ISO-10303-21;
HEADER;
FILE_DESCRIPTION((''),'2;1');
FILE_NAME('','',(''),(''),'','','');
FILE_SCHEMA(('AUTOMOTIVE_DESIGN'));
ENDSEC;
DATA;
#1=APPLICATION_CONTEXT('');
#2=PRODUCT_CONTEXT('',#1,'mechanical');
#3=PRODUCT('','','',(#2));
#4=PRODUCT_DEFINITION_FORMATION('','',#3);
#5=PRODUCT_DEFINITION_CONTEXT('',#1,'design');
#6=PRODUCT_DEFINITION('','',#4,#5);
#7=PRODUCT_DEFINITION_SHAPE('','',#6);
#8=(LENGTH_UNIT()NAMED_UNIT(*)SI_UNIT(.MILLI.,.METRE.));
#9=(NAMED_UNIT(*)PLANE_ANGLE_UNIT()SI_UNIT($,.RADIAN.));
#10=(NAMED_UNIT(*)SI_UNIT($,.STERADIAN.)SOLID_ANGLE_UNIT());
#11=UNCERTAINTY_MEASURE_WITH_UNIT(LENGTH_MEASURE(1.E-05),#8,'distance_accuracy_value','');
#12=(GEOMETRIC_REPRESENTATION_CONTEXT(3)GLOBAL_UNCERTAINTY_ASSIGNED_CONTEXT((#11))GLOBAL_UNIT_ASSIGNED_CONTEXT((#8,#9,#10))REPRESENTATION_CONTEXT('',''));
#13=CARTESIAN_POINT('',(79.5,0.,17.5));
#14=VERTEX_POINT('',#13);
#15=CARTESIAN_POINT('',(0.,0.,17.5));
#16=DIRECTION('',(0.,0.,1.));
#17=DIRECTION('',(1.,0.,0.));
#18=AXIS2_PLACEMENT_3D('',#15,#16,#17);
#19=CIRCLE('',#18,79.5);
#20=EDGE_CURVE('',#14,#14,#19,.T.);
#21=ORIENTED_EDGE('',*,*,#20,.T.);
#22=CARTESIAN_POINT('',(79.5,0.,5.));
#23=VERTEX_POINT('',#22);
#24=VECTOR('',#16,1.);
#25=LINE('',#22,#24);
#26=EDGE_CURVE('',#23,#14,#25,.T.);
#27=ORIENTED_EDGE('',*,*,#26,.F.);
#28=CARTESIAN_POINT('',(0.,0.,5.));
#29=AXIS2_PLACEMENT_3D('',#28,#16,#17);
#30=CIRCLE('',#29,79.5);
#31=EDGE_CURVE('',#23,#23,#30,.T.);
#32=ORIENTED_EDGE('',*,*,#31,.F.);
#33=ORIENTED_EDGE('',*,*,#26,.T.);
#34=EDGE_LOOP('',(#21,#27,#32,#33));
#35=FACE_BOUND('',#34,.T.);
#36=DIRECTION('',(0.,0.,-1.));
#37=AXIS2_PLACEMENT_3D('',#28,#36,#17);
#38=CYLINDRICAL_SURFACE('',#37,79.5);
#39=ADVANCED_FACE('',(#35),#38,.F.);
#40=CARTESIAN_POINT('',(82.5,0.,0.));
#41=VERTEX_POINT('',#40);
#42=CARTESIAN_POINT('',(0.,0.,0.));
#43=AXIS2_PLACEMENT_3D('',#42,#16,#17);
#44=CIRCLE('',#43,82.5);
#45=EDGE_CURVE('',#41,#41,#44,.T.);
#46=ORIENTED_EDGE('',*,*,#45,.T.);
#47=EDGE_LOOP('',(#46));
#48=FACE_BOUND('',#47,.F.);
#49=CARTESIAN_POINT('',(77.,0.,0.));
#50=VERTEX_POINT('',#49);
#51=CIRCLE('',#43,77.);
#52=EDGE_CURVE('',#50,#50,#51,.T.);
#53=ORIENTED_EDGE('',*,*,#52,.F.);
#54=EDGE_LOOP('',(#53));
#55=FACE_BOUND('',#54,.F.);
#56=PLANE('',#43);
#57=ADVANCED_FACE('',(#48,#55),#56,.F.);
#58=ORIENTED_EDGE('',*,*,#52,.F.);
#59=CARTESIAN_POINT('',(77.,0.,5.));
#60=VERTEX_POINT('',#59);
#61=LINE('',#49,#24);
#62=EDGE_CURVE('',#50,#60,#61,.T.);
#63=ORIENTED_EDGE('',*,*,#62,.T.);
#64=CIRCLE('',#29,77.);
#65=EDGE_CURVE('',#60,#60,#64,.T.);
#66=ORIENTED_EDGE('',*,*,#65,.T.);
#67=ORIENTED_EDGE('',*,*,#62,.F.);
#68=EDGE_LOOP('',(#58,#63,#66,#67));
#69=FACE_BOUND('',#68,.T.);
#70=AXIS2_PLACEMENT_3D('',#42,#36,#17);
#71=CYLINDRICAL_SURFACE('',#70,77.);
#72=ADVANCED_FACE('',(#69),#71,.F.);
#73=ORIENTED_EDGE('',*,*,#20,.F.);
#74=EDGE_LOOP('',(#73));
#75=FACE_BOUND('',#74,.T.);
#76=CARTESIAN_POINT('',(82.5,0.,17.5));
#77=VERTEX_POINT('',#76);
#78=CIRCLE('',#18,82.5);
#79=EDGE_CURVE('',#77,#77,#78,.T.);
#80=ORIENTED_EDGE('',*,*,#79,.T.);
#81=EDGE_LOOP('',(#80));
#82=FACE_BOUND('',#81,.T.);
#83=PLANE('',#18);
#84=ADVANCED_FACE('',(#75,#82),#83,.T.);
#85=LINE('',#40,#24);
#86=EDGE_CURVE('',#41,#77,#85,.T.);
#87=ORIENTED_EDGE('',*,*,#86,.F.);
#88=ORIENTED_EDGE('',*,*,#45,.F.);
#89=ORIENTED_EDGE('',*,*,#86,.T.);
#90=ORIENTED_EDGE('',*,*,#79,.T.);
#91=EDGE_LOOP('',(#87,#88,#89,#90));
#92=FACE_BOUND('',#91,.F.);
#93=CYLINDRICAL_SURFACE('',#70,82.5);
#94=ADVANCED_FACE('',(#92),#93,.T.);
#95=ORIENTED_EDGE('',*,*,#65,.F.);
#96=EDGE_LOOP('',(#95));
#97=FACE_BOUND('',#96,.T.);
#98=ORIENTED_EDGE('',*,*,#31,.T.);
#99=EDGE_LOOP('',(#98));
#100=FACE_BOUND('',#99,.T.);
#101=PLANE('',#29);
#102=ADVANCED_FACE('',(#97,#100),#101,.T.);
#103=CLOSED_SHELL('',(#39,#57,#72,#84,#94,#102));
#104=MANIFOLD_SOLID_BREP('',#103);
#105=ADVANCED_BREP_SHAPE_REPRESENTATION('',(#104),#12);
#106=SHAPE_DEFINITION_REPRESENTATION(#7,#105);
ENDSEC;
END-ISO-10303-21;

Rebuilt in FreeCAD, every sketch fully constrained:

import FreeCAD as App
import Part
import Sketcher

V = App.Vector

doc = App.newDocument("Part")
body = doc.addObject("PartDesign::Body", "Body")

# Sketch on XY plane
sketch1 = doc.addObject("Sketcher::SketchObject", "Sketch")
body.addObject(sketch1)
sketch1.AttachmentSupport = (doc.XY_Plane, [""])
sketch1.MapMode = "FlatFace"
sketch1.addGeometry(Part.Circle(V(0, 0, 0), V(0, 0, 1), 77), False)
sketch1.addConstraint(Sketcher.Constraint("Coincident", 0, 3, -1, 1))
sketch1.addConstraint(Sketcher.Constraint("Diameter", 0, 154.0))
pad1 = doc.addObject("PartDesign::Pad", "Pad")
body.addObject(pad1)
pad1.Profile = sketch1
pad1.Length = 5
body2 = doc.addObject("PartDesign::Body", "Body001")

# Sketch on XY plane
sketch2 = doc.addObject("Sketcher::SketchObject", "Sketch001")
body2.addObject(sketch2)
sketch2.AttachmentSupport = (doc.getObject("XY_Plane001"), [""])
sketch2.MapMode = "FlatFace"
sketch2.AttachmentOffset = App.Placement(V(0, 0, 5), App.Rotation())
sketch2.addGeometry(Part.Circle(V(0, 0, 0), V(0, 0, 1), 79.5), False)
sketch2.addConstraint(Sketcher.Constraint("Coincident", 0, 3, -1, 1))
sketch2.addConstraint(Sketcher.Constraint("Diameter", 0, 159.0))
pad2 = doc.addObject("PartDesign::Pad", "Pad001")
body2.addObject(pad2)
pad2.Profile = sketch2
pad2.Length = 12.5
doc.recompute()

boolean = doc.addObject("PartDesign::Boolean", "Boolean")
body2.addObject(boolean)
boolean.Type = "Fuse"
boolean.addObjects([body])
body3 = doc.addObject("PartDesign::Body", "Body002")

# Sketch on XY plane
sketch3 = doc.addObject("Sketcher::SketchObject", "Sketch002")
body3.addObject(sketch3)
sketch3.AttachmentSupport = (doc.getObject("XY_Plane002"), [""])
sketch3.MapMode = "FlatFace"
sketch3.addGeometry(Part.Circle(V(0, 0, 0), V(0, 0, 1), 82.5), False)
sketch3.addConstraint(Sketcher.Constraint("Coincident", 0, 3, -1, 1))
sketch3.addConstraint(Sketcher.Constraint("Diameter", 0, 165.0))
pad3 = doc.addObject("PartDesign::Pad", "Pad002")
body3.addObject(pad3)
pad3.Profile = sketch3
pad3.Length = 17.5
doc.recompute()

boolean2 = doc.addObject("PartDesign::Boolean", "Boolean001")
body3.addObject(boolean2)
boolean2.Type = "Cut"
boolean2.addObjects([body2])

doc.recompute()
